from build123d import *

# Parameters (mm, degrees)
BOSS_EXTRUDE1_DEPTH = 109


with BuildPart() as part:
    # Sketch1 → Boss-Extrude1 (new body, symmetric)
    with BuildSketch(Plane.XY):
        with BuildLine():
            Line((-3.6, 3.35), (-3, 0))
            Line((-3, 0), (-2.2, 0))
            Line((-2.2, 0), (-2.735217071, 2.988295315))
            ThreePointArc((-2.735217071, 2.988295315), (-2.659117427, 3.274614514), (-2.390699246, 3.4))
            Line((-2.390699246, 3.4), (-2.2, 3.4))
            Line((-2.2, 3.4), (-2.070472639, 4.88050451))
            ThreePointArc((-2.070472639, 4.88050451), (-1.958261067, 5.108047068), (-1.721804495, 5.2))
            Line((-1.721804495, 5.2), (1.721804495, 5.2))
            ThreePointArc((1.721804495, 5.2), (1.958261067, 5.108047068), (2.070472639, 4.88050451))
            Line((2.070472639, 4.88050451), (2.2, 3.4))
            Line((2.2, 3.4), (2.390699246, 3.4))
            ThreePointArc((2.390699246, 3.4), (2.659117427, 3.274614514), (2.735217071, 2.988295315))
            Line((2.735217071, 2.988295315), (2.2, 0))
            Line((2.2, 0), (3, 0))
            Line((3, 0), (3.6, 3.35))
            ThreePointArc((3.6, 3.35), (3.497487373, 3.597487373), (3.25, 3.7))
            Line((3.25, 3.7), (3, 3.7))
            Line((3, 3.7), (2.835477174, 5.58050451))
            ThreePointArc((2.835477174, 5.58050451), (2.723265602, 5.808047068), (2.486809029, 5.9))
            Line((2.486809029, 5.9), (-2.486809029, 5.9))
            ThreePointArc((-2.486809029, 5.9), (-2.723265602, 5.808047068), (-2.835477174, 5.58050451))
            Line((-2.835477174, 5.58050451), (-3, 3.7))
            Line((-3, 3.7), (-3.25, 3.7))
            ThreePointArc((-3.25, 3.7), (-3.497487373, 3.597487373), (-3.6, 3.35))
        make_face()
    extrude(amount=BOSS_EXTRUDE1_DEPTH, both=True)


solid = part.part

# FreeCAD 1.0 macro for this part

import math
import FreeCAD as App
import Part
import Sketcher

V = App.Vector
Q = App.Units.Quantity

doc = App.newDocument("Part")
body = doc.addObject("PartDesign::Body", "Body")

# Sketch on XY plane
sketch1 = body.newObject("Sketcher::SketchObject", "Sketch")
sketch1.AttachmentSupport = (doc.getObject("XY_Plane"), [""])
sketch1.MapMode = "FlatFace"
sketch1.addGeometry([
    Part.LineSegment(V(-3.6, 3.35, 0), V(-3, 0, 0)),  # 0
    Part.LineSegment(V(-3, 0, 0), V(-2.2, 0, 0)),  # 1
    Part.LineSegment(V(-2.2, 0, 0), V(-2.74, 2.99, 0)),  # 2
    Part.ArcOfCircle(Part.Circle(V(-2.39, 3.05, 0), V(0, 0, 1), 0.35), math.radians(90), math.radians(190)),  # 3
    Part.LineSegment(V(-2.39, 3.4, 0), V(-2.2, 3.4, 0)),  # 4
    Part.LineSegment(V(-2.2, 3.4, 0), V(-2.07, 4.88, 0)),  # 5
    Part.ArcOfCircle(Part.Circle(V(-1.72, 4.85, 0), V(0, 0, 1), 0.35), math.radians(90), math.radians(175)),  # 6
    Part.LineSegment(V(-1.72, 5.2, 0), V(1.72, 5.2, 0)),  # 7
    Part.ArcOfCircle(Part.Circle(V(1.72, 4.85, 0), V(0, 0, 1), 0.35), math.radians(5), math.radians(90)),  # 8
    Part.LineSegment(V(2.07, 4.88, 0), V(2.2, 3.4, 0)),  # 9
    Part.LineSegment(V(2.2, 3.4, 0), V(2.39, 3.4, 0)),  # 10
    Part.ArcOfCircle(Part.Circle(V(2.39, 3.05, 0), V(0, 0, 1), 0.35), math.radians(-10), math.radians(90)),  # 11
    Part.LineSegment(V(2.74, 2.99, 0), V(2.2, 0, 0)),  # 12
    Part.LineSegment(V(2.2, 0, 0), V(3, 0, 0)),  # 13
    Part.LineSegment(V(3, 0, 0), V(3.6, 3.35, 0)),  # 14
    Part.ArcOfCircle(Part.Circle(V(3.25, 3.35, 0), V(0, 0, 1), 0.35), math.radians(0), math.radians(90)),  # 15
    Part.LineSegment(V(3.25, 3.7, 0), V(3, 3.7, 0)),  # 16
    Part.LineSegment(V(3, 3.7, 0), V(2.84, 5.58, 0)),  # 17
    Part.ArcOfCircle(Part.Circle(V(2.49, 5.55, 0), V(0, 0, 1), 0.35), math.radians(5), math.radians(90)),  # 18
    Part.LineSegment(V(2.49, 5.9, 0), V(-2.49, 5.9, 0)),  # 19
    Part.ArcOfCircle(Part.Circle(V(-2.49, 5.55, 0), V(0, 0, 1), 0.35), math.radians(90), math.radians(175)),  # 20
    Part.LineSegment(V(-2.84, 5.58, 0), V(-3, 3.7, 0)),  # 21
    Part.LineSegment(V(-3, 3.7, 0), V(-3.25, 3.7, 0)),  # 22
    Part.ArcOfCircle(Part.Circle(V(-3.25, 3.35, 0), V(0, 0, 1), 0.35), math.radians(90), math.radians(180)),  # 23
], False)
sketch1.addConstraint([
    Sketcher.Constraint("Coincident", 0, 2, 1, 1),
    Sketcher.Constraint("Coincident", 1, 2, 2, 1),
    Sketcher.Constraint("Tangent", 2, 2, 3, 2),
    Sketcher.Constraint("Tangent", 3, 1, 4, 1),
    Sketcher.Constraint("Coincident", 4, 2, 5, 1),
    Sketcher.Constraint("Tangent", 5, 2, 6, 2),
    Sketcher.Constraint("Tangent", 6, 1, 7, 1),
    Sketcher.Constraint("Tangent", 7, 2, 8, 2),
    Sketcher.Constraint("Tangent", 8, 1, 9, 1),
    Sketcher.Constraint("Coincident", 9, 2, 10, 1),
    Sketcher.Constraint("Tangent", 10, 2, 11, 2),
    Sketcher.Constraint("Tangent", 11, 1, 12, 1),
    Sketcher.Constraint("Coincident", 12, 2, 13, 1),
    Sketcher.Constraint("Coincident", 13, 2, 14, 1),
    Sketcher.Constraint("Coincident", 14, 2, 15, 1),
    Sketcher.Constraint("Tangent", 15, 2, 16, 1),
    Sketcher.Constraint("Coincident", 16, 2, 17, 1),
    Sketcher.Constraint("Tangent", 17, 2, 18, 1),
    Sketcher.Constraint("Tangent", 18, 2, 19, 1),
    Sketcher.Constraint("Tangent", 19, 2, 20, 1),
    Sketcher.Constraint("Tangent", 20, 2, 21, 1),
    Sketcher.Constraint("Coincident", 21, 2, 22, 1),
    Sketcher.Constraint("Tangent", 22, 2, 23, 1),
    Sketcher.Constraint("Coincident", 23, 2, 0, 1),
    Sketcher.Constraint("Horizontal", 1),
    Sketcher.Constraint("Horizontal", 4),
    Sketcher.Constraint("Horizontal", 7),
    Sketcher.Constraint("Horizontal", 10),
    Sketcher.Constraint("Horizontal", 13),
    Sketcher.Constraint("Horizontal", 16),
    Sketcher.Constraint("Horizontal", 19),
    Sketcher.Constraint("Horizontal", 22),
    Sketcher.Constraint("Equal", 3, 6),
    Sketcher.Constraint("Equal", 6, 8),
    Sketcher.Constraint("Equal", 8, 11),
    Sketcher.Constraint("Equal", 11, 15),
    Sketcher.Constraint("Equal", 15, 18),
    Sketcher.Constraint("Equal", 18, 20),
    Sketcher.Constraint("Equal", 20, 23),
    Sketcher.Constraint("Symmetric", 1, 2, 12, 2, -1, 1),
    Sketcher.Constraint("Symmetric", 3, 3, 11, 3, -2),
    Sketcher.Constraint("Symmetric", 15, 3, 23, 3, -2),
    Sketcher.Constraint("Symmetric", 5, 2, 8, 1, -2),
    Sketcher.Constraint("Symmetric", 0, 2, 13, 2, -2),
    Sketcher.Constraint("Symmetric", 17, 2, 20, 2, -2),
    Sketcher.Constraint("Parallel", 0, 2),
    Sketcher.Constraint("Parallel", 12, 14),
    Sketcher.Constraint("Parallel", 9, 17),
    Sketcher.Constraint("Horizontal", 23, 3, 14, 2),
    Sketcher.Constraint("Vertical", 1, 2, 4, 2),
    Sketcher.Constraint("Vertical", 13, 2, 16, 2),
    Sketcher.Constraint("Angle", 5, Q("85 deg")),
    Sketcher.Constraint("Radius", 3, 0.35),
    Sketcher.Constraint("DistanceX", 1, 1, 1, 2, 0.8),
    Sketcher.Constraint("DistanceX", 0, 2, -1, 1, 3.0),
    Sketcher.Constraint("DistanceX", 16, 2, 16, 1, 0.25),
    Sketcher.Constraint("DistanceY", -1, 1, 3, 1, 3.4),
    Sketcher.Constraint("DistanceY", -1, 1, 6, 1, 5.2),
    Sketcher.Constraint("DistanceY", -1, 1, 15, 2, 3.7),
    Sketcher.Constraint("DistanceY", -1, 1, 18, 2, 5.9),
])
pad1 = body.newObject("PartDesign::Pad", "Pad")
pad1.Profile = sketch1
pad1.Length = 218
pad1.Midplane = True

doc.recompute()
